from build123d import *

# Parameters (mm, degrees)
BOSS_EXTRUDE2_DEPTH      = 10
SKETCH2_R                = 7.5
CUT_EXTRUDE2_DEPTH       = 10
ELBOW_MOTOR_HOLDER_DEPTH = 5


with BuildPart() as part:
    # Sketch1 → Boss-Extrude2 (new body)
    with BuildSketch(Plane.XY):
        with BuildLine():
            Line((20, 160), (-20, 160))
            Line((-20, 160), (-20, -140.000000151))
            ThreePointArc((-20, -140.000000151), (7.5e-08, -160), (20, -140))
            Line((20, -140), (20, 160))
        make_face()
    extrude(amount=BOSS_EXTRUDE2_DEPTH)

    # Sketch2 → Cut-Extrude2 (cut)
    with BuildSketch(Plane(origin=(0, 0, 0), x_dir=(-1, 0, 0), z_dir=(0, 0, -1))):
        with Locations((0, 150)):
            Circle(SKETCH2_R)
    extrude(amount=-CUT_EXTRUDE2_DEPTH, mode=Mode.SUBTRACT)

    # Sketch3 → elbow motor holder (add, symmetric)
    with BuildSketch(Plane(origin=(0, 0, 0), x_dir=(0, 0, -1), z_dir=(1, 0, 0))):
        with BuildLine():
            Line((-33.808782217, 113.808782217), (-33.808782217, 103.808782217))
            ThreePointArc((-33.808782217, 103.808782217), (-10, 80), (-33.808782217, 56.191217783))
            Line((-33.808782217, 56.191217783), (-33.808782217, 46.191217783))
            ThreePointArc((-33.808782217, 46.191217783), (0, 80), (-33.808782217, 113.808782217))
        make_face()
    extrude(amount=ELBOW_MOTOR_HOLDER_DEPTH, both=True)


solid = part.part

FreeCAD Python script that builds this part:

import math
import FreeCAD as App
import Part
import Sketcher
from FreeCAD import Vector

doc = App.newDocument("Part")
body = doc.addObject("PartDesign::Body", "Body")

# Sketch on XY plane
sketch1 = body.newObject("Sketcher::SketchObject", "Sketch")
sketch1.AttachmentSupport = (doc.getObject("XY_Plane"), [""])
sketch1.MapMode = "FlatFace"
sketch1.addGeometry([
    Part.LineSegment(Vector(20, 160, 0), Vector(-20, 160, 0)),
    Part.LineSegment(Vector(-20, 160, 0), Vector(-20, -140, 0)),
    Part.ArcOfCircle(Part.Circle(Vector(0, -140, 0), Vector(0, 0, 1), 20), math.radians(-180), math.radians(0)),
    Part.LineSegment(Vector(20, -140, 0), Vector(20, 160, 0)),
], False)
sketch1.addConstraint([
    Sketcher.Constraint("Coincident", 0, 2, 1, 1),
    Sketcher.Constraint("Tangent", 1, 2, 2, 1),
    Sketcher.Constraint("Tangent", 2, 2, 3, 1),
    Sketcher.Constraint("Coincident", 3, 2, 0, 1),
    Sketcher.Constraint("Horizontal", 0),
    Sketcher.Constraint("Vertical", 1),
    Sketcher.Constraint("Vertical", 3),
    Sketcher.Constraint("PointOnObject", 2, 3, -2),
    Sketcher.Constraint("Radius", 2, 20.0),
    Sketcher.Constraint("DistanceY", 1, 2, 1, 1, 300.0),
    Sketcher.Constraint("DistanceY", 2, 3, -1, 1, 140.0),
])
pad1 = body.newObject("PartDesign::Pad", "Pad")
pad1.Profile = sketch1
pad1.Length = 10

# Sketch on XY plane
sketch2 = body.newObject("Sketcher::SketchObject", "Sketch001")
sketch2.AttachmentSupport = (doc.getObject("XY_Plane"), [""])
sketch2.MapMode = "FlatFace"
sketch2.addGeometry(Part.Circle(Vector(0, 150, 0), Vector(0, 0, 1), 8), False)
sketch2.addConstraint([
    Sketcher.Constraint("PointOnObject", 0, 3, -2),
    Sketcher.Constraint("Diameter", 0, 15.0),
    Sketcher.Constraint("DistanceY", -1, 1, 0, 3, 150.0),
])
pocket1 = body.newObject("PartDesign::Pocket", "Pocket")
pocket1.Profile = sketch2
pocket1.Length = 10
pocket1.Reversed = True

# Sketch on YZ plane
sketch3 = body.newObject("Sketcher::SketchObject", "Sketch002")
sketch3.AttachmentSupport = (doc.getObject("YZ_Plane"), [""])
sketch3.MapMode = "FlatFace"
sketch3.addGeometry([
    Part.LineSegment(Vector(114, 34, 0), Vector(104, 34, 0)),
    Part.ArcOfCircle(Part.Circle(Vector(80, 34, 0), Vector(0, 0, 1), 24), math.radians(180), math.radians(360)),
    Part.LineSegment(Vector(56, 34, 0), Vector(46, 34, 0)),
    Part.ArcOfCircle(Part.Circle(Vector(80, 34, 0), Vector(0, 0, 1), 34), math.radians(180), math.radians(360)),
], False)
sketch3.addConstraint([
    Sketcher.Constraint("Coincident", 0, 2, 1, 2),
    Sketcher.Constraint("Coincident", 1, 1, 2, 1),
    Sketcher.Constraint("Coincident", 2, 2, 3, 1),
    Sketcher.Constraint("Coincident", 3, 2, 0, 1),
    Sketcher.Constraint("Horizontal", 0),
    Sketcher.Constraint("Horizontal", 2),
    Sketcher.Constraint("Coincident", 3, 3, 1, 3),
    Sketcher.Constraint("Horizontal", 3, 3, 0, 2),
    Sketcher.Constraint("Horizontal", 0, 2, 1, 1),
    Sketcher.Constraint("DistanceX", 0, 2, 0, 1, 10.0),
    Sketcher.Constraint("DistanceX", -1, 1, 1, 3, 80.0),
    Sketcher.Constraint("Radius", 1, 23.808782),
    Sketcher.Constraint("DistanceY", -1, 1, 1, 3, 33.808782),
])
pad2 = body.newObject("PartDesign::Pad", "Pad001")
pad2.Profile = sketch3
pad2.Length = 10
pad2.Midplane = True

doc.recompute()
